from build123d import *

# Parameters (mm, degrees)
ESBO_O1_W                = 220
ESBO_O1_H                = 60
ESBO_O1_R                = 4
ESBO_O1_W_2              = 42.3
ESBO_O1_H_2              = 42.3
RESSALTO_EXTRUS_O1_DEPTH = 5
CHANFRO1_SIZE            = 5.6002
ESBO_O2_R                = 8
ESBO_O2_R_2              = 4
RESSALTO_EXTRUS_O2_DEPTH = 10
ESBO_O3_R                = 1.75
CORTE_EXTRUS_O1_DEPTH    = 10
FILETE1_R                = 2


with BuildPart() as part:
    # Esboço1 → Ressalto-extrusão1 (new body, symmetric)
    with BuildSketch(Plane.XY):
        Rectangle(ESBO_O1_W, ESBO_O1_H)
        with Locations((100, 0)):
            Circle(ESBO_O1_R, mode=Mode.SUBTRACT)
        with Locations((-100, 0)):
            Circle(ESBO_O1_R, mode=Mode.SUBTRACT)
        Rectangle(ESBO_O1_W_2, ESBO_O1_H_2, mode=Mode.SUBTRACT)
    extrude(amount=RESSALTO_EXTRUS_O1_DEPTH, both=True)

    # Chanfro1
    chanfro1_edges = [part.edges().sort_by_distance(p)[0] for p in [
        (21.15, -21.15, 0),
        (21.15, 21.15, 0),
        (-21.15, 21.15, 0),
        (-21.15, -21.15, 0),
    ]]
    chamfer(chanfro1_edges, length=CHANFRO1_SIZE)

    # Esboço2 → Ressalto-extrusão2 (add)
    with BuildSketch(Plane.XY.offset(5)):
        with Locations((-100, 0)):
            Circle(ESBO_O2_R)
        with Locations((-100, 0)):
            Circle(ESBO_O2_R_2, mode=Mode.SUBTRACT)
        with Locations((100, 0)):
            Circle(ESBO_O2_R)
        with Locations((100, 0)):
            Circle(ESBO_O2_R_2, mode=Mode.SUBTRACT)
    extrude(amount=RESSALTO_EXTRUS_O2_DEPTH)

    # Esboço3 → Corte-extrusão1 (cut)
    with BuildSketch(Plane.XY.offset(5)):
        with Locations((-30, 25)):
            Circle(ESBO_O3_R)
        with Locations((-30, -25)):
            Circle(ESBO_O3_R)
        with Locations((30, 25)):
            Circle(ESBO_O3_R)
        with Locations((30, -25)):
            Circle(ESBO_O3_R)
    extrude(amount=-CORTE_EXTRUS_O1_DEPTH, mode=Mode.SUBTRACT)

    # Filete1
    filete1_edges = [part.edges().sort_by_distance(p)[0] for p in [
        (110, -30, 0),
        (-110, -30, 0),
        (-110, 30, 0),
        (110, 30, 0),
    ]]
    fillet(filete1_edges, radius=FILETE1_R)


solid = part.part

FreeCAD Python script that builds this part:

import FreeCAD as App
import Part
import Sketcher


def edges_at(feature, points):
    """Names of the edges that pass closest to the given points."""
    edges = feature.Shape.Edges
    near = lambda p: min(range(len(edges)), key=lambda i: edges[i].distToShape(Part.Vertex(*p))[0])
    return sorted({f"Edge{near(p) + 1}" for p in points})

doc = App.newDocument("Part")
params = doc.addObject("Spreadsheet::Sheet", "Params")
for row, (alias, value) in enumerate([
    ("sketch1_diameter", "8 mm"),
    ("sketch1_width", "220 mm"),
    ("sketch1_height", "60 mm"),
    ("sketch1_width2", "42.3 mm"),
    ("pad1_length", "10 mm"),
    ("chamfer_size", "5.6002 mm"),
    ("sketch2_diameter", "16 mm"),
    ("sketch2_diameter2", "8 mm"),
    ("pad2_length", "10 mm"),
    ("sketch3_diameter", "3.5 mm"),
    ("pocket1_length", "10 mm"),
    ("fillet_radius", "2 mm"),
], start=1):
    params.set(f"A{row}", alias)
    params.set(f"B{row}", "=" + value)
    params.setAlias(f"B{row}", alias)

body = doc.addObject("PartDesign::Body", "Body")

# Sketch on XY plane
sketch1 = body.newObject("Sketcher::SketchObject", "Sketch")
sketch1.AttachmentSupport = (doc.getObject("XY_Plane"), [""])
sketch1.MapMode = "FlatFace"
sketch1.addGeometry([
    Part.LineSegment(App.Vector(-110, 30, 0), App.Vector(-110, -30, 0)),  # 0
    Part.LineSegment(App.Vector(-110, -30, 0), App.Vector(110, -30, 0)),  # 1
    Part.LineSegment(App.Vector(110, -30, 0), App.Vector(110, 30, 0)),  # 2
    Part.LineSegment(App.Vector(110, 30, 0), App.Vector(-110, 30, 0)),  # 3
    Part.Circle(App.Vector(-100, 0, 0), App.Vector(0, 0, 1), 4),  # 4
    Part.LineSegment(App.Vector(21.1, -21.1, 0), App.Vector(-21.1, -21.1, 0)),  # 5
    Part.LineSegment(App.Vector(-21.1, -21.1, 0), App.Vector(-21.1, 21.1, 0)),  # 6
    Part.LineSegment(App.Vector(-21.1, 21.1, 0), App.Vector(21.1, 21.1, 0)),  # 7
    Part.LineSegment(App.Vector(21.1, 21.1, 0), App.Vector(21.1, -21.1, 0)),  # 8
    Part.Circle(App.Vector(100, 0, 0), App.Vector(0, 0, 1), 4),  # 9
], False)
sketch1.addConstraint([
    Sketcher.Constraint("Coincident", 0, 2, 1, 1),
    Sketcher.Constraint("Coincident", 1, 2, 2, 1),
    Sketcher.Constraint("Coincident", 2, 2, 3, 1),
    Sketcher.Constraint("Coincident", 3, 2, 0, 1),
    Sketcher.Constraint("Coincident", 5, 2, 6, 1),
    Sketcher.Constraint("Coincident", 6, 2, 7, 1),
    Sketcher.Constraint("Coincident", 7, 2, 8, 1),
    Sketcher.Constraint("Coincident", 8, 2, 5, 1),
    Sketcher.Constraint("Vertical", 0),
    Sketcher.Constraint("Horizontal", 1),
    Sketcher.Constraint("Vertical", 2),
    Sketcher.Constraint("Horizontal", 3),
    Sketcher.Constraint("Horizontal", 5),
    Sketcher.Constraint("Vertical", 6),
    Sketcher.Constraint("Horizontal", 7),
    Sketcher.Constraint("Vertical", 8),
    Sketcher.Constraint("Equal", 4, 9),
    Sketcher.Constraint("Symmetric", 4, 3, 9, 3, -1, 1),
    Sketcher.Constraint("Symmetric", 0, 2, 2, 2, -1, 1),
    Sketcher.Constraint("Symmetric", 5, 2, 7, 2, -1, 1),
    Sketcher.Constraint("PointOnObject", 4, 3, -1),
    Sketcher.Constraint("Equal", 7, 6),
    Sketcher.Constraint("Diameter", 4, 8.0),
    Sketcher.Constraint("DistanceX", 1, 1, 1, 2, 220.0),
    Sketcher.Constraint("DistanceY", 0, 2, 0, 1, 60.0),
    Sketcher.Constraint("DistanceX", 5, 2, 5, 1, 42.3),
    Sketcher.Constraint("DistanceX", 4, 3, -1, 1, 100.0),
])
sketch1.setExpression("Constraints[22]", "Params.sketch1_diameter")
sketch1.setExpression("Constraints[23]", "Params.sketch1_width")
sketch1.setExpression("Constraints[24]", "Params.sketch1_height")
sketch1.setExpression("Constraints[25]", "Params.sketch1_width2")
pad1 = body.newObject("PartDesign::Pad", "Pad")
pad1.Profile = sketch1
pad1.setExpression("Length", "Params.pad1_length")
pad1.Midplane = True
doc.recompute()

chamfer = body.newObject("PartDesign::Chamfer", "Chamfer")
chamfer.Base = (pad1, edges_at(pad1, [
    (21.15, -21.15, 0),
    (21.15, 21.15, 0),
    (-21.15, 21.15, 0),
    (-21.15, -21.15, 0),
]))
chamfer.setExpression("Size", "Params.chamfer_size")

# Sketch on XY plane
sketch2 = body.newObject("Sketcher::SketchObject", "Sketch001")
sketch2.AttachmentSupport = (doc.getObject("XY_Plane"), [""])
sketch2.MapMode = "FlatFace"
sketch2.AttachmentOffset = App.Placement(App.Vector(0, 0, 5), App.Rotation())
sketch2.addGeometry([
    Part.Circle(App.Vector(-100, 0, 0), App.Vector(0, 0, 1), 8),
    Part.Circle(App.Vector(-100, 0, 0), App.Vector(0, 0, 1), 4),
    Part.Circle(App.Vector(100, 0, 0), App.Vector(0, 0, 1), 8),
    Part.Circle(App.Vector(100, 0, 0), App.Vector(0, 0, 1), 4),
], False)
sketch2.addConstraint([
    Sketcher.Constraint("Coincident", 1, 3, 0, 3),
    Sketcher.Constraint("Coincident", 3, 3, 2, 3),
    Sketcher.Constraint("Equal", 0, 2),
    Sketcher.Constraint("Equal", 1, 3),
    Sketcher.Constraint("Symmetric", 0, 3, 2, 3, -1, 1),
    Sketcher.Constraint("PointOnObject", 0, 3, -1),
    Sketcher.Constraint("Diameter", 0, 16.0),
    Sketcher.Constraint("Diameter", 1, 8.0),
    Sketcher.Constraint("DistanceX", 0, 3, -1, 1, 100.0),
])
sketch2.setExpression("Constraints[6]", "Params.sketch2_diameter")
sketch2.setExpression("Constraints[7]", "Params.sketch2_diameter2")
pad2 = body.newObject("PartDesign::Pad", "Pad001")
pad2.Profile = sketch2
pad2.setExpression("Length", "Params.pad2_length")

# Sketch on XY plane
sketch3 = body.newObject("Sketcher::SketchObject", "Sketch002")
sketch3.AttachmentSupport = (doc.getObject("XY_Plane"), [""])
sketch3.MapMode = "FlatFace"
sketch3.AttachmentOffset = App.Placement(App.Vector(0, 0, 5), App.Rotation())
sketch3.addGeometry([
    Part.Circle(App.Vector(-30, 25, 0), App.Vector(0, 0, 1), 1.8),
    Part.Circle(App.Vector(-30, -25, 0), App.Vector(0, 0, 1), 1.8),
    Part.Circle(App.Vector(30, 25, 0), App.Vector(0, 0, 1), 1.8),
    Part.Circle(App.Vector(30, -25, 0), App.Vector(0, 0, 1), 1.8),
], False)
sketch3.addConstraint([
    Sketcher.Constraint("Equal", 0, 1),
    Sketcher.Constraint("Equal", 1, 2),
    Sketcher.Constraint("Equal", 2, 3),
    Sketcher.Constraint("Symmetric", 1, 3, 2, 3, -1, 1),
    Sketcher.Constraint("Symmetric", 0, 3, 3, 3, -1, 1),
    Sketcher.Constraint("Symmetric", 0, 3, 2, 3, -2),
    Sketcher.Constraint("Diameter", 0, 3.5),
    Sketcher.Constraint("DistanceX", 0, 3, -1, 1, 30.0),
    Sketcher.Constraint("DistanceY", -1, 1, 0, 3, 25.0),
])
sketch3.setExpression("Constraints[6]", "Params.sketch3_diameter")
pocket1 = body.newObject("PartDesign::Pocket", "Pocket")
pocket1.Profile = sketch3
pocket1.setExpression("Length", "Params.pocket1_length")
doc.recompute()

fillet = body.newObject("PartDesign::Fillet", "Fillet")
fillet.Base = (pocket1, edges_at(pocket1, [
    (110, -30, 0),
    (-110, -30, 0),
    (-110, 30, 0),
    (110, 30, 0),
]))
fillet.setExpression("Radius", "Params.fillet_radius")

doc.recompute()
